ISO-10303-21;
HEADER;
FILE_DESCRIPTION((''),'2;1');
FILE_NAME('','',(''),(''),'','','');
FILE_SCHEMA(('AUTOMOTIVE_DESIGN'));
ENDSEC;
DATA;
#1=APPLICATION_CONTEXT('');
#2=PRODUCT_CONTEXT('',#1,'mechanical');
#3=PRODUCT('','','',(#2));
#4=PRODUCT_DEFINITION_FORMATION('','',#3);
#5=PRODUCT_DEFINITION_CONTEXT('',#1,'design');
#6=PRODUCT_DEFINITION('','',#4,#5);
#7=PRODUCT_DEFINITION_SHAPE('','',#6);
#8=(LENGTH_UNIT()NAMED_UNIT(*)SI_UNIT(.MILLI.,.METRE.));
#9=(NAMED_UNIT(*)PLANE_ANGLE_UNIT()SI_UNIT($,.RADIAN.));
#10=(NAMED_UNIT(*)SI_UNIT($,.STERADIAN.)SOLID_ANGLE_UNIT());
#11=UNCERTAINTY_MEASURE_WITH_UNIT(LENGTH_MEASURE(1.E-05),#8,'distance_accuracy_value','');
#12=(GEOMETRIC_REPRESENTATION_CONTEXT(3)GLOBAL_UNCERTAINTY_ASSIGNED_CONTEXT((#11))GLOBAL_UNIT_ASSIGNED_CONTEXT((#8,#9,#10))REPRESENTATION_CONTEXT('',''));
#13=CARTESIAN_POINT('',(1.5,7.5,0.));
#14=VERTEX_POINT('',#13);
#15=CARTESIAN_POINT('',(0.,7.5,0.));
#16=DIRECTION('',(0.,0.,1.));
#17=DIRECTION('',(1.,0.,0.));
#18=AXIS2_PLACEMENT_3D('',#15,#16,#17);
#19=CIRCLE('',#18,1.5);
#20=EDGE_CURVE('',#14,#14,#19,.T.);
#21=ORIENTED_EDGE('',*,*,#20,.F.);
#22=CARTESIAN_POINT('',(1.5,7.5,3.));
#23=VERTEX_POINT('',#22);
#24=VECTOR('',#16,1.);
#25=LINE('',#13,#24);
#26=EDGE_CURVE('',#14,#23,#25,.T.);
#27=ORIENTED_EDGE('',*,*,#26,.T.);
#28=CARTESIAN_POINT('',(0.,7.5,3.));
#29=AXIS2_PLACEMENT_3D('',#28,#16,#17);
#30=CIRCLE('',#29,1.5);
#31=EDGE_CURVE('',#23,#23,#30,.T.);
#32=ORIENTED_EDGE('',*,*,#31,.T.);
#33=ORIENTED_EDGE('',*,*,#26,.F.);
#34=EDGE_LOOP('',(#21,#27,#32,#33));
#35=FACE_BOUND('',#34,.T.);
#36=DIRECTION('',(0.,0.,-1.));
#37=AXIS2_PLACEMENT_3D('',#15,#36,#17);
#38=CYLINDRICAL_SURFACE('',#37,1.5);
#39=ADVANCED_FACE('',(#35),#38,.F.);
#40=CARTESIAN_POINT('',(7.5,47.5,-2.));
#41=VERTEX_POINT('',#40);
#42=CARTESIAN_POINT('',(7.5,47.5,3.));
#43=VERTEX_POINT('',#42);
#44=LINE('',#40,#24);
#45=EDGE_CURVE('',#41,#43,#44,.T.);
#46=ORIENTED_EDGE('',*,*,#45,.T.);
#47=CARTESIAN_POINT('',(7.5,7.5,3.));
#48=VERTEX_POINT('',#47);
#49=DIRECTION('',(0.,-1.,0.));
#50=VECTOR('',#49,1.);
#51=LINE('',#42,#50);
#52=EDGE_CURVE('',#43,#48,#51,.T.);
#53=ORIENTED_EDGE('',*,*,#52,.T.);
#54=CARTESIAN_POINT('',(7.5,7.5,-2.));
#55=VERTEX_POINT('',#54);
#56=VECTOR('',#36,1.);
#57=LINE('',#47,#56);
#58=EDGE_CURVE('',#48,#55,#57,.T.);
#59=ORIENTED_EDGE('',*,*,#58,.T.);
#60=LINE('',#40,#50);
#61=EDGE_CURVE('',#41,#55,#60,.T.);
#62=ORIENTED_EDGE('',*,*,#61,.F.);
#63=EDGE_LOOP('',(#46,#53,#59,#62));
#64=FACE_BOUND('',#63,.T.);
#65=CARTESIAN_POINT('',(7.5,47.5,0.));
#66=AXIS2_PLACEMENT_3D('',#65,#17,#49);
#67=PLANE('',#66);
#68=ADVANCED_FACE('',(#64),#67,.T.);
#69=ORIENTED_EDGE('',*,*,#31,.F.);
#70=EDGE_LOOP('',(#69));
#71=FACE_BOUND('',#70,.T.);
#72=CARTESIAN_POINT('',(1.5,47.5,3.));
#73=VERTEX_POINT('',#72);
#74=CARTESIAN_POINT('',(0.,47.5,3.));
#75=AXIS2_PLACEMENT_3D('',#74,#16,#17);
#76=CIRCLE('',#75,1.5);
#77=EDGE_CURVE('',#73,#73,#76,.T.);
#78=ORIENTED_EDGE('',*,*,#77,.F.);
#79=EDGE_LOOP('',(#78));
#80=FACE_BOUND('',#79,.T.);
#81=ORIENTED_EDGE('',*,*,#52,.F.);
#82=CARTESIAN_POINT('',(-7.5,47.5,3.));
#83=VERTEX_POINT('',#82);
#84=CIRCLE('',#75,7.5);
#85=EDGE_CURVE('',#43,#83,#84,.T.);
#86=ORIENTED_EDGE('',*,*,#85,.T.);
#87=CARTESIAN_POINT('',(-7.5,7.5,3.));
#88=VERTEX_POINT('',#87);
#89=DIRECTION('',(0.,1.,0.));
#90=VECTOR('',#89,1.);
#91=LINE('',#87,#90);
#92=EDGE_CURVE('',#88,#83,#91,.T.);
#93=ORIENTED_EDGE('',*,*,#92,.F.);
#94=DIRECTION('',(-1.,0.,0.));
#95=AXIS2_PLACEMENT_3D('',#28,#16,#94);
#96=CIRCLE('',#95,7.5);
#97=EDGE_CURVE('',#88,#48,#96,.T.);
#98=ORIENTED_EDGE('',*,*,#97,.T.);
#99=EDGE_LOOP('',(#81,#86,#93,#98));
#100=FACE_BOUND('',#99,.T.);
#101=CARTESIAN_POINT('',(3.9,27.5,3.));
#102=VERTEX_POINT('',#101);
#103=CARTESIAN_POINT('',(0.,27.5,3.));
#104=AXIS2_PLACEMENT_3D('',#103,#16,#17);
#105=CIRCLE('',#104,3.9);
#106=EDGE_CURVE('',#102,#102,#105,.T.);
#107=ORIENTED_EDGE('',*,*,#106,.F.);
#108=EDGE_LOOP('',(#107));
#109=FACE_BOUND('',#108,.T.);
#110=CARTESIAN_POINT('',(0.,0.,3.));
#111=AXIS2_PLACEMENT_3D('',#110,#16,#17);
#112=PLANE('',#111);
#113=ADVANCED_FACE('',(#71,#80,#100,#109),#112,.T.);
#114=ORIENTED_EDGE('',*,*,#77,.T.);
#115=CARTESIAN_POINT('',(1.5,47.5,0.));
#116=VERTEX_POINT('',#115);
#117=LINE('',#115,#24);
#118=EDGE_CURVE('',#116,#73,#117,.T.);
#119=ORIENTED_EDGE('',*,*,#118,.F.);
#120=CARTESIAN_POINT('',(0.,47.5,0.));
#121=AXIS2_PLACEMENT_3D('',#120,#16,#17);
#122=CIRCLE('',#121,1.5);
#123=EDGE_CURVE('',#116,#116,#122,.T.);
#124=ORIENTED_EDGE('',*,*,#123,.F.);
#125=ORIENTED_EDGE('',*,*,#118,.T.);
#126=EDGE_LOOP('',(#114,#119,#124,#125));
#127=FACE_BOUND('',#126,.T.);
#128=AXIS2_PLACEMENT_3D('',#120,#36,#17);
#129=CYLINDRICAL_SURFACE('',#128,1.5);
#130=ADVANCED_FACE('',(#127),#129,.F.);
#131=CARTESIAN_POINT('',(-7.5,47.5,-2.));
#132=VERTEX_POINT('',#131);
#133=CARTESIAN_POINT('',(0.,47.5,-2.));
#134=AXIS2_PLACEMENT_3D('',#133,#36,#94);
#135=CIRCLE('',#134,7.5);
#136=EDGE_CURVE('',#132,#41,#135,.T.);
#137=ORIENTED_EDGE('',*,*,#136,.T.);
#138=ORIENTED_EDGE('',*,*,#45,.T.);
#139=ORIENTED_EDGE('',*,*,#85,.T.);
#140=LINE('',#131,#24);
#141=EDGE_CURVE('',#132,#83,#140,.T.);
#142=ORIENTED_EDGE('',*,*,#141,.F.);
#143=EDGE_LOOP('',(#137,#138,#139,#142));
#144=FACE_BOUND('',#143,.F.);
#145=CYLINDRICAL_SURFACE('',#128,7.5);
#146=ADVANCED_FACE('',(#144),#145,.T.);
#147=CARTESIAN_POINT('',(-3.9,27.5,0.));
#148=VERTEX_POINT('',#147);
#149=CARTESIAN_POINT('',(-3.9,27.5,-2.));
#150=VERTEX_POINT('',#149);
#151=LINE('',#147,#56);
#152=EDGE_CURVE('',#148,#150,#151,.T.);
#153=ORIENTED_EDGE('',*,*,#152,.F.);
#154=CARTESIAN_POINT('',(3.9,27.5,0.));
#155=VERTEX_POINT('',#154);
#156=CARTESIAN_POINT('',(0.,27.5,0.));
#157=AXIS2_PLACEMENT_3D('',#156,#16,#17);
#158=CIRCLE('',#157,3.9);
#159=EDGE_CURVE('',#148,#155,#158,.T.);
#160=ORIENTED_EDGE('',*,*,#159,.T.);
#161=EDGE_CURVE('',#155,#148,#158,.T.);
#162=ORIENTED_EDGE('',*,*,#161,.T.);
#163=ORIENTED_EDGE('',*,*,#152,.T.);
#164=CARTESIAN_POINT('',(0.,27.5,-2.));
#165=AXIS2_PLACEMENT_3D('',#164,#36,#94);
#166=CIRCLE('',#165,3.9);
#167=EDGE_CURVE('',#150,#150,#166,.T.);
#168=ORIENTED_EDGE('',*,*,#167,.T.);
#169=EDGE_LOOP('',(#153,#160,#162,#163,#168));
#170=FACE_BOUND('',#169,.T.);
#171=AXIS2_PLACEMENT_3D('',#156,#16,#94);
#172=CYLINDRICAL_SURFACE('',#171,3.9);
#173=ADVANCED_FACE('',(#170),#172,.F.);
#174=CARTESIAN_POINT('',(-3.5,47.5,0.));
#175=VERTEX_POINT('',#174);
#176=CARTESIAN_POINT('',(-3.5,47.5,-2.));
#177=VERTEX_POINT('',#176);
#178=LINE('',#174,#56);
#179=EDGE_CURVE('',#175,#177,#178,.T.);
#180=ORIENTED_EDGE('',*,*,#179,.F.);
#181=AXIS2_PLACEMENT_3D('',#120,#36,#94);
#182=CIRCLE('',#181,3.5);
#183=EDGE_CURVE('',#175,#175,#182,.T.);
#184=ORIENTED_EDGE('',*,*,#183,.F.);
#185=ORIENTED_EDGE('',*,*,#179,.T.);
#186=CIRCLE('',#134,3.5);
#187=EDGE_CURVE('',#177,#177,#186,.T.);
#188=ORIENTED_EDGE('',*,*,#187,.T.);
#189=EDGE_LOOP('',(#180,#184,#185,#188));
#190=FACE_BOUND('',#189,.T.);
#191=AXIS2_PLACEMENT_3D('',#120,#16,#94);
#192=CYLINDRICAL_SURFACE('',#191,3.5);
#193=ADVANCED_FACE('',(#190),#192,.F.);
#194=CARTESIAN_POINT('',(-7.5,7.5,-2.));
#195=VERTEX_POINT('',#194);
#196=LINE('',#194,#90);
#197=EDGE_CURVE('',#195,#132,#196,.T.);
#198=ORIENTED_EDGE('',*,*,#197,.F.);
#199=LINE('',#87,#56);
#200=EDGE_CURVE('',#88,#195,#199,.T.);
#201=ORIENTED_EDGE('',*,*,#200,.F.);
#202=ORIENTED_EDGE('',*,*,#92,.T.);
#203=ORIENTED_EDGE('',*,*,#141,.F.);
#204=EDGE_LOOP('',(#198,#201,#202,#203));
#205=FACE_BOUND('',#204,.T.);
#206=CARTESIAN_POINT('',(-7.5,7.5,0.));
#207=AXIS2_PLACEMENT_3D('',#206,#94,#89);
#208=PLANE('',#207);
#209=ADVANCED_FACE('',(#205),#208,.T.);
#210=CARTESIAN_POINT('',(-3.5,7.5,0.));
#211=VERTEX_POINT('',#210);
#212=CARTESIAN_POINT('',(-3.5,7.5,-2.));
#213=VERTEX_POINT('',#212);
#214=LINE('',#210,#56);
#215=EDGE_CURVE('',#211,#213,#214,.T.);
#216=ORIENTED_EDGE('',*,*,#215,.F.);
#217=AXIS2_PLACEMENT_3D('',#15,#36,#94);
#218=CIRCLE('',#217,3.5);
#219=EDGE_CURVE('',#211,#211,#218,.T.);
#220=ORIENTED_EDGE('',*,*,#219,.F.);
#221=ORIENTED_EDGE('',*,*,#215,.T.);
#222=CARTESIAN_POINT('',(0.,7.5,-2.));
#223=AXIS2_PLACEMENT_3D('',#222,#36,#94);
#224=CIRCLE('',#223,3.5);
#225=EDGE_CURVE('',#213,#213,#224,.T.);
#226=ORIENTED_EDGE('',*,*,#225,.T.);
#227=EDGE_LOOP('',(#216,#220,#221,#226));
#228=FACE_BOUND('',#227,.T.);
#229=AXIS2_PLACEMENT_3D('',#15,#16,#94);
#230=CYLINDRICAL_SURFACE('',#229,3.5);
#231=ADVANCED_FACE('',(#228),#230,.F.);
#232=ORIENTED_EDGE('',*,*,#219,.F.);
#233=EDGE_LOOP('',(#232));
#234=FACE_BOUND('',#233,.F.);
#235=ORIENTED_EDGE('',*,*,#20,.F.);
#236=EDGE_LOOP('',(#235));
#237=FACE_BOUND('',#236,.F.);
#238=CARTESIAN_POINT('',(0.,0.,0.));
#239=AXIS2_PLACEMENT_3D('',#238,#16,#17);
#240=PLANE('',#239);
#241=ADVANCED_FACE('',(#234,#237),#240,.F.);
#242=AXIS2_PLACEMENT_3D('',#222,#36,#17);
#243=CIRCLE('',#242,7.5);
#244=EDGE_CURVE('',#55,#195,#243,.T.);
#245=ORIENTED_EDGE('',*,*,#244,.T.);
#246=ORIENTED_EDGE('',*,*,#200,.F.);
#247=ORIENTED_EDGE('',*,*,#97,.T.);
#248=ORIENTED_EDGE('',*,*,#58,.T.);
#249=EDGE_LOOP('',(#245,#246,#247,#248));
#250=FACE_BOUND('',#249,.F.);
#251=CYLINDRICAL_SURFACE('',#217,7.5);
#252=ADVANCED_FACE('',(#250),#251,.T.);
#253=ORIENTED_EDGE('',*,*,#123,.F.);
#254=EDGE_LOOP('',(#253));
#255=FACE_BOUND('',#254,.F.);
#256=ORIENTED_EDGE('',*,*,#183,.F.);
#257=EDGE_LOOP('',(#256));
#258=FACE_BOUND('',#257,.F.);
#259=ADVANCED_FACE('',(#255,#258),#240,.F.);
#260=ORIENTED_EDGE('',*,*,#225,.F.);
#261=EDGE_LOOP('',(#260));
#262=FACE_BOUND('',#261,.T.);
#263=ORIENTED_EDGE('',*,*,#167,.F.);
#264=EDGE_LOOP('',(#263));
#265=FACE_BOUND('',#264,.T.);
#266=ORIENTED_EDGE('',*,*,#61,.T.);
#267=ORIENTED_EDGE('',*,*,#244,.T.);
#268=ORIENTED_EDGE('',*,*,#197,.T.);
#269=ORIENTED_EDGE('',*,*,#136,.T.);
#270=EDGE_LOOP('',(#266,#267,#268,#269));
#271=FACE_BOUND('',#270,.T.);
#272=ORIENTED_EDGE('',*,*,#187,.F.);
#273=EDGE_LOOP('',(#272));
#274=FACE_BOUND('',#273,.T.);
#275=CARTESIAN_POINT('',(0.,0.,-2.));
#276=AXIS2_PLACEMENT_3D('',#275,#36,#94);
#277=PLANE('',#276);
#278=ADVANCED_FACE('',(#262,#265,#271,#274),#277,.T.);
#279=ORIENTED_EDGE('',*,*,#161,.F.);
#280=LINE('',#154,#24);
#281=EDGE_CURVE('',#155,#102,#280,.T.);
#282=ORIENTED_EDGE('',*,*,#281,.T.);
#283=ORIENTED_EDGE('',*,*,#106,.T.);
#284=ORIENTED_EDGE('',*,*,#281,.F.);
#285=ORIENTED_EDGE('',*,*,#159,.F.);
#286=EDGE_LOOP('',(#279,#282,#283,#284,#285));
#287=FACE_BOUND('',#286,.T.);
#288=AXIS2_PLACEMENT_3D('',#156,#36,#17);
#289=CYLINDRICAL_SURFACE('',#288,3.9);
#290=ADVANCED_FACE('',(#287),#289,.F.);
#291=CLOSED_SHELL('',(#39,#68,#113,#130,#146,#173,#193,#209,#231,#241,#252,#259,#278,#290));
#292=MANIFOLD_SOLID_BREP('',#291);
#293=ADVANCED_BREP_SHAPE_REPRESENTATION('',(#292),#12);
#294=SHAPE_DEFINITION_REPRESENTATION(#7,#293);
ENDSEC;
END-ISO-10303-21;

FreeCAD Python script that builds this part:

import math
import FreeCAD as App
import Part
import Sketcher
Q = App.Units.Quantity

doc = App.newDocument("Part")
body = doc.addObject("PartDesign::Body", "Body")

sketch1 = doc.addObject("Sketcher::SketchObject", "Sketch")
body.addObject(sketch1)
sketch1.AttachmentSupport = (doc.XY_Plane, [""])
sketch1.MapMode = "FlatFace"
sketch1.addGeometry([
    Part.LineSegment(App.Vector(7.5, 7.5, 0), App.Vector(7.5, 47.5, 0)),
    Part.ArcOfCircle(Part.Circle(App.Vector(0, 47.5, 0), App.Vector(0, 0, 1), 7.5), math.radians(0), math.radians(180)),
    Part.LineSegment(App.Vector(-7.5, 47.5, 0), App.Vector(-7.5, 7.5, 0)),
    Part.ArcOfCircle(Part.Circle(App.Vector(0, 7.5, 0), App.Vector(0, 0, 1), 7.5), math.radians(180), math.radians(360)),
    Part.Circle(App.Vector(0, 7.5, 0), App.Vector(0, 0, 1), 1.5),
    Part.Circle(App.Vector(0, 27.5, 0), App.Vector(0, 0, 1), 3.9),
    Part.Circle(App.Vector(0, 47.5, 0), App.Vector(0, 0, 1), 1.5),
], False)
sketch1.addConstraint([
    Sketcher.Constraint("Tangent", 0, 2, 1, 1),
    Sketcher.Constraint("Tangent", 1, 2, 2, 1),
    Sketcher.Constraint("Tangent", 2, 2, 3, 1),
    Sketcher.Constraint("Tangent", 3, 2, 0, 1),
    Sketcher.Constraint("Vertical", 0),
    Sketcher.Constraint("Vertical", 2),
    Sketcher.Constraint("Coincident", 4, 3, 3, 3),
    Sketcher.Constraint("Coincident", 6, 3, 1, 3),
    Sketcher.Constraint("Equal", 4, 6),
    Sketcher.Constraint("PointOnObject", 1, 3, -2),
    Sketcher.Constraint("PointOnObject", 5, 3, -2),
    Sketcher.Constraint("Diameter", 4, Q("3 mm")),
    Sketcher.Constraint("Diameter", 5, Q("7.8 mm")),
    Sketcher.Constraint("Radius", 1, Q("7.5 mm")),
    Sketcher.Constraint("DistanceY", 0, 1, 0, 2, Q("40 mm")),
    Sketcher.Constraint("DistanceY", 5, 3, 1, 3, Q("20 mm")),
    Sketcher.Constraint("DistanceY", -1, 1, 1, 3, Q("47.5 mm")),
])
pad1 = doc.addObject("PartDesign::Pad", "Pad")
body.addObject(pad1)
pad1.Profile = sketch1
pad1.Length = 3

sketch2 = doc.addObject("Sketcher::SketchObject", "Sketch001")
body.addObject(sketch2)
sketch2.AttachmentSupport = (doc.XY_Plane, [""])
sketch2.MapMode = "FlatFace"
sketch2.addGeometry([
    Part.ArcOfCircle(Part.Circle(App.Vector(0, 47.5, 0), App.Vector(0, 0, 1), 7.5), math.radians(0), math.radians(180)),
    Part.LineSegment(App.Vector(7.5, 47.5, 0), App.Vector(7.5, 7.5, 0)),
    Part.ArcOfCircle(Part.Circle(App.Vector(0, 7.5, 0), App.Vector(0, 0, 1), 7.5), math.radians(180), math.radians(360)),
    Part.LineSegment(App.Vector(-7.5, 7.5, 0), App.Vector(-7.5, 47.5, 0)),
    Part.Circle(App.Vector(0, 7.5, 0), App.Vector(0, 0, 1), 3.5),
    Part.Circle(App.Vector(0, 27.5, 0), App.Vector(0, 0, 1), 3.9),
    Part.Circle(App.Vector(0, 47.5, 0), App.Vector(0, 0, 1), 3.5),
], False)
sketch2.addConstraint([
    Sketcher.Constraint("Tangent", 0, 1, 1, 1),
    Sketcher.Constraint("Tangent", 1, 2, 2, 2),
    Sketcher.Constraint("Tangent", 2, 1, 3, 1),
    Sketcher.Constraint("Tangent", 3, 2, 0, 2),
    Sketcher.Constraint("Vertical", 1),
    Sketcher.Constraint("Vertical", 3),
    Sketcher.Constraint("Coincident", 4, 3, 2, 3),
    Sketcher.Constraint("Coincident", 6, 3, 0, 3),
    Sketcher.Constraint("Equal", 4, 6),
    Sketcher.Constraint("PointOnObject", 0, 3, -2),
    Sketcher.Constraint("PointOnObject", 5, 3, -2),
    Sketcher.Constraint("Diameter", 4, Q("7 mm")),
    Sketcher.Constraint("Diameter", 5, Q("7.8 mm")),
    Sketcher.Constraint("Radius", 0, Q("7.5 mm")),
    Sketcher.Constraint("DistanceY", 1, 2, 1, 1, Q("40 mm")),
    Sketcher.Constraint("DistanceY", 5, 3, 0, 3, Q("20 mm")),
    Sketcher.Constraint("DistanceY", -1, 1, 0, 3, Q("47.5 mm")),
])
pad2 = doc.addObject("PartDesign::Pad", "Pad001")
body.addObject(pad2)
pad2.Profile = sketch2
pad2.Length = 2
pad2.Reversed = True

doc.recompute()
